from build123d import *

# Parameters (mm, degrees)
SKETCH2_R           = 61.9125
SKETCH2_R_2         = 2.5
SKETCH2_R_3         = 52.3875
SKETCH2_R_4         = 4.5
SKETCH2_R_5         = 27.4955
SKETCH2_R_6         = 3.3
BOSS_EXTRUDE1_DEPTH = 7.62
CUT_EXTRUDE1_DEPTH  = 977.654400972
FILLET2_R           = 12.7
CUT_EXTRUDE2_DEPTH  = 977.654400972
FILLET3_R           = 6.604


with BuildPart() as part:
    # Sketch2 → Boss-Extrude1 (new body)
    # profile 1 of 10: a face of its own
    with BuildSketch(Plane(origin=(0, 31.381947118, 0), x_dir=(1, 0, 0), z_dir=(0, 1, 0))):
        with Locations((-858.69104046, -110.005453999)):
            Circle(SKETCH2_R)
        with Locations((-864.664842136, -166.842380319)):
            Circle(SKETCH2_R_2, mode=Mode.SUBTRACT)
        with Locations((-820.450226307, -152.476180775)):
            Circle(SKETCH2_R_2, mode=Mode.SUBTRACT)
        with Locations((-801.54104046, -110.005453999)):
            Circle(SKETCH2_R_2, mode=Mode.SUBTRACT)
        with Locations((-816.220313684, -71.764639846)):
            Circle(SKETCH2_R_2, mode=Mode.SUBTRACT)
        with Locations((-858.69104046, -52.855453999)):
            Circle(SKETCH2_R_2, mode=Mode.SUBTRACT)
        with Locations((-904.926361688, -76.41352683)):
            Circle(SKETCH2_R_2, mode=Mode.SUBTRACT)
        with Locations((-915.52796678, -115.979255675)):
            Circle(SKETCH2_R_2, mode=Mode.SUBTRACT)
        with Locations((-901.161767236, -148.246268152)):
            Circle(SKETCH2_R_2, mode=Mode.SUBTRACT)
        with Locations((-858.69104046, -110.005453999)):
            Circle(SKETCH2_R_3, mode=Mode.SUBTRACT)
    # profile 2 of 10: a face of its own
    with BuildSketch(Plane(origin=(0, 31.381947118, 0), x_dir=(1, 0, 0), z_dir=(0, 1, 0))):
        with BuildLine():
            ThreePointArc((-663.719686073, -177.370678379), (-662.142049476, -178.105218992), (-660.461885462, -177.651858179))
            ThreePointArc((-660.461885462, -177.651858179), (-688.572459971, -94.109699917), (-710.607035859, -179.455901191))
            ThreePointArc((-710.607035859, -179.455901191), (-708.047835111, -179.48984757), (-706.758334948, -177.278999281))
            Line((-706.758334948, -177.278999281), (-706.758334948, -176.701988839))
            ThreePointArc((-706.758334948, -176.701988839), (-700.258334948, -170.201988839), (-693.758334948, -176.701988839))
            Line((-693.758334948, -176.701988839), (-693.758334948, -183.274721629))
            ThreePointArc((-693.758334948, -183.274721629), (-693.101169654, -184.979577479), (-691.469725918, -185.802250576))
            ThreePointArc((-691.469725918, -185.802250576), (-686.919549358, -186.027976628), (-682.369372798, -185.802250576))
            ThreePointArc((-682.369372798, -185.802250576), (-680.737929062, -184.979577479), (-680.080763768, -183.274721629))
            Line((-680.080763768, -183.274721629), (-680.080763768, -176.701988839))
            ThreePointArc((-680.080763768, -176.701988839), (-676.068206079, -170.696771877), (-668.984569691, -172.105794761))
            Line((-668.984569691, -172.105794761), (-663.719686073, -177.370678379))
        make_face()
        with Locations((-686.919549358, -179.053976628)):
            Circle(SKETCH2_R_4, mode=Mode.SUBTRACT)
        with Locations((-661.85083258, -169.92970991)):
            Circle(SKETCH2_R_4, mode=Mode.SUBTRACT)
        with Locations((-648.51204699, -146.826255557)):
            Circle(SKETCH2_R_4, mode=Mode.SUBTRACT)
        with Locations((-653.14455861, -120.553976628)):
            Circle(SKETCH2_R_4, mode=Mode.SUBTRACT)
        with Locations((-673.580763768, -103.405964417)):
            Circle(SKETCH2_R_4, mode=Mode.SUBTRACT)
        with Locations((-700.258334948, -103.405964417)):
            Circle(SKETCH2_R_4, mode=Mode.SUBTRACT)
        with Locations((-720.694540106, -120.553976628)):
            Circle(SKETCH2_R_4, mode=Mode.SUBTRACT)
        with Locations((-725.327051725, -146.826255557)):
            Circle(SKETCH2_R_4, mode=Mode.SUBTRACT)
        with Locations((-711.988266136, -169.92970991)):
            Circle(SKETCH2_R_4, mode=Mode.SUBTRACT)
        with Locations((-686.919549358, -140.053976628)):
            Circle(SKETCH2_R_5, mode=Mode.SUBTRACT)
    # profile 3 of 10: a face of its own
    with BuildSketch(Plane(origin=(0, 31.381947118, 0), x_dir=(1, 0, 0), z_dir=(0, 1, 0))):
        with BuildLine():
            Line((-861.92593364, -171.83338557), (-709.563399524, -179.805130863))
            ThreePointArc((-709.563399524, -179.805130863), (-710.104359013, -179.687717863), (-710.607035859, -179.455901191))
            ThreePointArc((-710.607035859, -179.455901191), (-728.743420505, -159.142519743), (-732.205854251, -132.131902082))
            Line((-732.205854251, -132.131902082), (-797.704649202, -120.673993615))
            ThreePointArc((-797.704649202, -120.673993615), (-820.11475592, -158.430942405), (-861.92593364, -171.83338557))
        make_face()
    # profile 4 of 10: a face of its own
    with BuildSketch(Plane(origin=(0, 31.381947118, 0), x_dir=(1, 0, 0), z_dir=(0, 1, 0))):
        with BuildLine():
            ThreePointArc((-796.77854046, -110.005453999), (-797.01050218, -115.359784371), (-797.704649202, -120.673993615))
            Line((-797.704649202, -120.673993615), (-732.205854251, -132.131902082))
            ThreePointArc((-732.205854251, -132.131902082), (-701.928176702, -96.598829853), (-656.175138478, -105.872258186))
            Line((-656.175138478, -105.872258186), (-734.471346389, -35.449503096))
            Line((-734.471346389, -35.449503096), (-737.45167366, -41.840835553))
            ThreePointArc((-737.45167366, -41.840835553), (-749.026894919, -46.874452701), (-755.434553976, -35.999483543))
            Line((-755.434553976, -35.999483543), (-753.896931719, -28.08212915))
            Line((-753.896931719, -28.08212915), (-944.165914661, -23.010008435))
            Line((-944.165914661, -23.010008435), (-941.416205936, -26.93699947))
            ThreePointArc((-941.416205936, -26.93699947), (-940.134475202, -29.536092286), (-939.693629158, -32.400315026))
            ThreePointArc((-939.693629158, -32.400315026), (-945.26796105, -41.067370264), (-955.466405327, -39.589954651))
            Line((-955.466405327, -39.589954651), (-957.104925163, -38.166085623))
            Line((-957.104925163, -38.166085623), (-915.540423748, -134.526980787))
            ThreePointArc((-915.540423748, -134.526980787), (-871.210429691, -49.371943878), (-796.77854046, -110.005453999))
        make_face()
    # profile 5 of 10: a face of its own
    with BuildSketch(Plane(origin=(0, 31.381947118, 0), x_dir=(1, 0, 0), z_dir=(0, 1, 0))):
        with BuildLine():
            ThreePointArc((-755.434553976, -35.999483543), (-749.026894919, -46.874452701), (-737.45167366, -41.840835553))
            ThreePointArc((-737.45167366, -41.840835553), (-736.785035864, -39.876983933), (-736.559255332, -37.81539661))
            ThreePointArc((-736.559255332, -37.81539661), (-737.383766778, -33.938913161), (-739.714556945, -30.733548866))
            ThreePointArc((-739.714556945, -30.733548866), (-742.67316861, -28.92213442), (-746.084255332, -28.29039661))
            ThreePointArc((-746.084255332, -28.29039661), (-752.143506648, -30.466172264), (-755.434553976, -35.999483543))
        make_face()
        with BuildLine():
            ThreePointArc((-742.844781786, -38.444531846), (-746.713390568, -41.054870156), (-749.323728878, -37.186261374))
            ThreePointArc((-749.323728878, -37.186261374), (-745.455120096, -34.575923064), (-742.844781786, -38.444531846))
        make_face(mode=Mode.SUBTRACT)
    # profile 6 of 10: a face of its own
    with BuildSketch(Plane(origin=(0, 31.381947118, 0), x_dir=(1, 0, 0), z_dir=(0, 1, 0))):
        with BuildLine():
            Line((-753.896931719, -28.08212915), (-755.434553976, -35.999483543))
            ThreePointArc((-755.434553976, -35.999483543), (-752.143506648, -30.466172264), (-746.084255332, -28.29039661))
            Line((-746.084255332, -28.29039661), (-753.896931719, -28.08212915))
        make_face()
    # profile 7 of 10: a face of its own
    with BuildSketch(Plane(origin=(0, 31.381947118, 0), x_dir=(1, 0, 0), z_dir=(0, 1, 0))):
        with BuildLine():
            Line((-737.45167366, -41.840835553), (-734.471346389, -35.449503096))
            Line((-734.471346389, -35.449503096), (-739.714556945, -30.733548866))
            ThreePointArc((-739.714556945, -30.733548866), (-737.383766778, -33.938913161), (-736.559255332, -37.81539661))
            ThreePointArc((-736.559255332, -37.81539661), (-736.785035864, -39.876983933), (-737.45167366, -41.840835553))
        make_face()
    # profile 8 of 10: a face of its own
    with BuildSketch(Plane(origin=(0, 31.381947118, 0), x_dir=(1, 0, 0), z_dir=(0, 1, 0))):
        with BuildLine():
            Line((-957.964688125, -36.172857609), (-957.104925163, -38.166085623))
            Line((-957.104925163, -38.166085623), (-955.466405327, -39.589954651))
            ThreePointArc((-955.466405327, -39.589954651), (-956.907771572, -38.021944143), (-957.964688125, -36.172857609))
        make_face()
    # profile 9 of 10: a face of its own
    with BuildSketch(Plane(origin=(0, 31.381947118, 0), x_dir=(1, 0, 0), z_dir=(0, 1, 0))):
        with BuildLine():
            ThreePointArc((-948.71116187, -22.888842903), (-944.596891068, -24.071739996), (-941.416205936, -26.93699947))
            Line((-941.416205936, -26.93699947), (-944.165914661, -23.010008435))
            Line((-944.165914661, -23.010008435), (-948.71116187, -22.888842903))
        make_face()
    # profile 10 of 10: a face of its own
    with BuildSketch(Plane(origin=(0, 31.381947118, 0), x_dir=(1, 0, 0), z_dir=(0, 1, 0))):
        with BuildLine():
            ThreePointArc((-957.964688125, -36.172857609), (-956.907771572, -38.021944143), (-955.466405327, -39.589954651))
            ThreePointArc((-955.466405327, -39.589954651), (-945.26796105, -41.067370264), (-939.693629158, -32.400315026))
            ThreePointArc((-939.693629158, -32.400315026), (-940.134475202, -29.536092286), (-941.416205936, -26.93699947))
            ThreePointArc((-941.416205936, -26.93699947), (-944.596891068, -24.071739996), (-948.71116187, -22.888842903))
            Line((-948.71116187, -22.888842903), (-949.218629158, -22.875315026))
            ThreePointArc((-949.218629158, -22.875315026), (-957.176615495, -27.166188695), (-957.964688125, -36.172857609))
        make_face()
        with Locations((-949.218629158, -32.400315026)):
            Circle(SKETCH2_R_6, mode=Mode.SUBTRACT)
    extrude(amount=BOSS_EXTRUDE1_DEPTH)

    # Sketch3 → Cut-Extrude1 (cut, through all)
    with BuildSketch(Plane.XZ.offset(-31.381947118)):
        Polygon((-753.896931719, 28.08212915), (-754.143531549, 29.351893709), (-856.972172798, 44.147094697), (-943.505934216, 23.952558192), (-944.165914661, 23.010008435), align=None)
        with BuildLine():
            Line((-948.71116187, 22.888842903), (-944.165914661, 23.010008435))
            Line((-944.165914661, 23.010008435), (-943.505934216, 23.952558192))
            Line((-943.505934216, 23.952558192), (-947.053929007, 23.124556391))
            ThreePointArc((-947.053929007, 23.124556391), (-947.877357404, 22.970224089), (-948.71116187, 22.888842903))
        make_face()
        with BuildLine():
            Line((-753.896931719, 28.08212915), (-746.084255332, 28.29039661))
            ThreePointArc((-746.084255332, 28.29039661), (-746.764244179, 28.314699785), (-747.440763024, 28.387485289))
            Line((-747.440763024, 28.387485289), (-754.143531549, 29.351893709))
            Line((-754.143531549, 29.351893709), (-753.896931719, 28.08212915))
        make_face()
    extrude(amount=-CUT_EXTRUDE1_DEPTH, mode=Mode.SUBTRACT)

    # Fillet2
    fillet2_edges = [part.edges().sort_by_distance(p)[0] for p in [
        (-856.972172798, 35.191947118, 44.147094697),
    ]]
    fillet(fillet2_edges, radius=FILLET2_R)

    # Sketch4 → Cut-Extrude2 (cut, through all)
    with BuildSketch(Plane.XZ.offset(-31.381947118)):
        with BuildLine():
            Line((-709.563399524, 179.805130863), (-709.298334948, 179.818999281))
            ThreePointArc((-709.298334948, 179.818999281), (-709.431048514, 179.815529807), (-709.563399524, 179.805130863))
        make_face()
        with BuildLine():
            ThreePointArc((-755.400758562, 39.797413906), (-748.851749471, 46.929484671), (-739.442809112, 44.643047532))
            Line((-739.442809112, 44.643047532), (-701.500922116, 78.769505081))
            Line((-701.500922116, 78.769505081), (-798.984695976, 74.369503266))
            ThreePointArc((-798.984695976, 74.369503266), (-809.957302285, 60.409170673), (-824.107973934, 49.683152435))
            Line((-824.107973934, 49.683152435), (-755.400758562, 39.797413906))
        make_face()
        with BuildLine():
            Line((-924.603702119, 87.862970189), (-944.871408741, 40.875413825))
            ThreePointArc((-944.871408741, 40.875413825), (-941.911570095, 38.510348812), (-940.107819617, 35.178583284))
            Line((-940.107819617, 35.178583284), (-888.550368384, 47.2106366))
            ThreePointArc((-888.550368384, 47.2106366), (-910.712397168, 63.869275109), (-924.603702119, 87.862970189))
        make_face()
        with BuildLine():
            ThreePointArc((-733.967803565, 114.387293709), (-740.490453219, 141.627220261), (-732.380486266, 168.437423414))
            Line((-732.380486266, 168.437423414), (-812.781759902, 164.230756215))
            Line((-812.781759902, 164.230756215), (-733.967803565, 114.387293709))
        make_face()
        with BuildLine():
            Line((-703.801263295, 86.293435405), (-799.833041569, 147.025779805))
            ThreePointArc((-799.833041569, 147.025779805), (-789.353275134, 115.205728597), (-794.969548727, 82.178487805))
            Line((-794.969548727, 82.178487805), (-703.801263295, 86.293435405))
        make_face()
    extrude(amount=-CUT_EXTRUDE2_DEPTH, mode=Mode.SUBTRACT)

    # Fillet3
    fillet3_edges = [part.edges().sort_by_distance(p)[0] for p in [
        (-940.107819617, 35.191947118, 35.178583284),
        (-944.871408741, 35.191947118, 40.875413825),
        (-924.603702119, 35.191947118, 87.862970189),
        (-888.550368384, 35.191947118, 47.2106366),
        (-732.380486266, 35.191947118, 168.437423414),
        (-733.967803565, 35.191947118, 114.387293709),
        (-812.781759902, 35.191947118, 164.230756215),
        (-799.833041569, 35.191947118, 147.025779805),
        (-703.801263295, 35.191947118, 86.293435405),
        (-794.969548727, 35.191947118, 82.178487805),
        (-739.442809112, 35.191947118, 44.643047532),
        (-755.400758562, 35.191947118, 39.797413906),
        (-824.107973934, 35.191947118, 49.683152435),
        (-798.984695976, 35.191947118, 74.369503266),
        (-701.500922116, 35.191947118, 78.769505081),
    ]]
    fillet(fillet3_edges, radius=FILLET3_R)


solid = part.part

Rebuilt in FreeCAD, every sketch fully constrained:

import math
import FreeCAD as App
import Part
import Sketcher

V = App.Vector
Q = App.Units.Quantity


def edges_at(feature, points):
    """Names of the edges that pass closest to the given points."""
    edges = feature.Shape.Edges
    near = lambda p: min(range(len(edges)), key=lambda i: edges[i].distToShape(Part.Vertex(*p))[0])
    return sorted({f"Edge{near(p) + 1}" for p in points})

doc = App.newDocument("Part")
body = doc.addObject("PartDesign::Body", "Body")

# Sketch on XZ plane
sketch1 = body.newObject("Sketcher::SketchObject", "Sketch")
sketch1.AttachmentSupport = (doc.getObject("XZ_Plane"), [""])
sketch1.MapMode = "FlatFace"
sketch1.AttachmentOffset = App.Placement(V(0, 0, -31.381947), App.Rotation())
sketch1.addGeometry([
    Part.ArcOfCircle(Part.Circle(V(-858.69104, 110.005454, 0), V(0, 0, 1), 61.9125), math.radians(92.995036), math.radians(156.667434)),  # 0
    Part.LineSegment(V(-861.925934, 171.833386, 0), V(-709.5634, 179.805131, 0)),  # 1
    Part.ArcOfCircle(Part.Circle(V(-709.298335, 177.278999, 0), V(0, 0, 1), 2.54), math.radians(0), math.radians(95.990072)),  # 2
    Part.LineSegment(V(-706.758335, 177.278999, 0), V(-706.758335, 176.701989, 0)),  # 3
    Part.ArcOfCircle(Part.Circle(V(-700.258335, 176.701989, 0), V(0, 0, 1), 6.5), math.radians(180), math.radians(360)),  # 4
    Part.LineSegment(V(-693.758335, 176.701989, 0), V(-693.758335, 183.274722, 0)),  # 5
    Part.ArcOfCircle(Part.Circle(V(-691.218335, 183.274722, 0), V(0, 0, 1), 2.54), math.radians(95.680024), math.radians(180)),  # 6
    Part.ArcOfCircle(Part.Circle(V(-686.919549, 140.053977, 0), V(0, 0, 1), 45.974), math.radians(84.319976), math.radians(95.680024)),  # 7
    Part.ArcOfCircle(Part.Circle(V(-682.620764, 183.274722, 0), V(0, 0, 1), 2.54), math.radians(0), math.radians(84.319976)),  # 8
    Part.LineSegment(V(-680.080764, 183.274722, 0), V(-680.080764, 176.701989, 0)),  # 9
    Part.ArcOfCircle(Part.Circle(V(-673.580764, 176.701989, 0), V(0, 0, 1), 6.5), math.radians(180), math.radians(315)),  # 10
    Part.LineSegment(V(-668.98457, 172.105795, 0), V(-663.719686, 177.370678, 0)),  # 11
    Part.ArcOfCircle(Part.Circle(V(-661.923635, 175.574627, 0), V(0, 0, 1), 2.54), math.radians(54.865914), math.radians(135)),  # 12
    Part.ArcOfCircle(Part.Circle(V(-686.919549, 140.053977, 0), V(0, 0, 1), 45.974), math.radians(-48.030514), math.radians(54.865914)),  # 13
    Part.LineSegment(V(-656.175138, 105.872258, 0), V(-734.471346, 35.449503, 0)),  # 14
    Part.LineSegment(V(-734.471346, 35.449503, 0), V(-739.714557, 30.733549, 0)),  # 15
    Part.ArcOfCircle(Part.Circle(V(-746.084255, 37.815397, 0), V(0, 0, 1), 9.525), math.radians(-90), math.radians(-48.030514)),  # 16
    Part.LineSegment(V(-746.084255, 28.290397, 0), V(-753.896932, 28.082129, 0)),  # 17
    Part.LineSegment(V(-753.896932, 28.082129, 0), V(-944.165915, 23.010008, 0)),  # 18
    Part.LineSegment(V(-944.165915, 23.010008, 0), V(-948.711162, 22.888843, 0)),  # 19
    Part.LineSegment(V(-948.711162, 22.888843, 0), V(-949.218629, 22.875315, 0)),  # 20
    Part.ArcOfCircle(Part.Circle(V(-949.218629, 32.400315, 0), V(0, 0, 1), 9.525), math.radians(156.667434), math.radians(270)),  # 21
    Part.LineSegment(V(-957.964688, 36.172858, 0), V(-957.104925, 38.166086, 0)),  # 22
    Part.LineSegment(V(-957.104925, 38.166086, 0), V(-915.540424, 134.526981, 0)),  # 23
    Part.Circle(V(-901.161767, 148.246268, 0), V(0, 0, 1), 2.5),  # 24
    Part.Circle(V(-864.664842, 166.84238, 0), V(0, 0, 1), 2.5),  # 25
    Part.Circle(V(-915.527967, 115.979256, 0), V(0, 0, 1), 2.5),  # 26
    Part.Circle(V(-858.69104, 110.005454, 0), V(0, 0, 1), 52.3875),  # 27
    Part.Circle(V(-820.450226, 152.476181, 0), V(0, 0, 1), 2.5),  # 28
    Part.Circle(V(-801.54104, 110.005454, 0), V(0, 0, 1), 2.5),  # 29
    Part.Circle(V(-904.926362, 76.413527, 0), V(0, 0, 1), 2.5),  # 30
    Part.Circle(V(-858.69104, 52.855454, 0), V(0, 0, 1), 2.5),  # 31
    Part.Circle(V(-816.220314, 71.76464, 0), V(0, 0, 1), 2.5),  # 32
    Part.Circle(V(-673.580764, 103.405964, 0), V(0, 0, 1), 4.5),  # 33
    Part.Circle(V(-700.258335, 103.405964, 0), V(0, 0, 1), 4.5),  # 34
    Part.Circle(V(-653.144559, 120.553977, 0), V(0, 0, 1), 4.5),  # 35
    Part.Circle(V(-711.988266, 169.92971, 0), V(0, 0, 1), 4.5),  # 36
    Part.Circle(V(-686.919549, 179.053977, 0), V(0, 0, 1), 4.5),  # 37
    Part.Circle(V(-725.327052, 146.826256, 0), V(0, 0, 1), 4.5),  # 38
    Part.Circle(V(-661.850833, 169.92971, 0), V(0, 0, 1), 4.5),  # 39
    Part.Circle(V(-648.512047, 146.826256, 0), V(0, 0, 1), 4.5),  # 40
    Part.Circle(V(-720.69454, 120.553977, 0), V(0, 0, 1), 4.5),  # 41
    Part.Circle(V(-686.919549, 140.053977, 0), V(0, 0, 1), 27.4955),  # 42
    Part.Circle(V(-746.084255, 37.815397, 0), V(0, 0, 1), 3.3),  # 43
    Part.Circle(V(-949.218629, 32.400315, 0), V(0, 0, 1), 3.3),  # 44
], False)
sketch1.addConstraint([
    Sketcher.Constraint("Coincident", 0, 1, 1, 1),
    Sketcher.Constraint("Coincident", 1, 2, 2, 2),
    Sketcher.Constraint("Coincident", 2, 1, 3, 1),
    Sketcher.Constraint("Coincident", 3, 2, 4, 1),
    Sketcher.Constraint("Coincident", 4, 2, 5, 1),
    Sketcher.Constraint("Coincident", 5, 2, 6, 2),
    Sketcher.Constraint("Coincident", 6, 1, 7, 2),
    Sketcher.Constraint("Coincident", 7, 1, 8, 2),
    Sketcher.Constraint("Coincident", 8, 1, 9, 1),
    Sketcher.Constraint("Coincident", 9, 2, 10, 1),
    Sketcher.Constraint("Coincident", 10, 2, 11, 1),
    Sketcher.Constraint("Coincident", 11, 2, 12, 2),
    Sketcher.Constraint("Coincident", 12, 1, 13, 2),
    Sketcher.Constraint("Coincident", 13, 1, 14, 1),
    Sketcher.Constraint("Coincident", 14, 2, 15, 1),
    Sketcher.Constraint("Coincident", 15, 2, 16, 2),
    Sketcher.Constraint("Coincident", 16, 1, 17, 1),
    Sketcher.Constraint("Coincident", 17, 2, 18, 1),
    Sketcher.Constraint("Coincident", 18, 2, 19, 1),
    Sketcher.Constraint("Coincident", 19, 2, 20, 1),
    Sketcher.Constraint("Coincident", 20, 2, 21, 2),
    Sketcher.Constraint("Coincident", 21, 1, 22, 1),
    Sketcher.Constraint("Coincident", 22, 2, 23, 1),
    Sketcher.Constraint("Coincident", 23, 2, 0, 2),
    Sketcher.Constraint("Vertical", 3),
    Sketcher.Constraint("Vertical", 5),
    Sketcher.Constraint("Vertical", 9),
    Sketcher.Constraint("Coincident", 13, 3, 7, 3),
    Sketcher.Constraint("Coincident", 27, 3, 0, 3),
    Sketcher.Constraint("Coincident", 42, 3, 7, 3),
    Sketcher.Constraint("Coincident", 43, 3, 16, 3),
    Sketcher.Constraint("Coincident", 44, 3, 21, 3),
    Sketcher.Constraint("Radius", 2, Q("0.1 in")),
    Sketcher.Constraint("Radius", 6, Q("0.1 in")),
    Sketcher.Constraint("Radius", 8, Q("0.1 in")),
    Sketcher.Constraint("Radius", 12, Q("0.1 in")),
    Sketcher.Constraint("Radius", 7, Q("1.81 in")),
    Sketcher.Constraint("Radius", 13, Q("1.81 in")),
    Sketcher.Constraint("Diameter", 27, Q("4.125 in")),
    Sketcher.Constraint("Diameter", 42, Q("2.165 in")),
    Sketcher.Constraint("Radius", 0, Q("2.4375 in")),
    Sketcher.Constraint("Radius", 16, Q("0.375 in")),
    Sketcher.Constraint("Radius", 21, Q("0.375 in")),
    Sketcher.Constraint("Diameter", 24, 5.0),
    Sketcher.Constraint("Diameter", 25, 5.0),
    Sketcher.Constraint("Diameter", 26, 5.0),
    Sketcher.Constraint("Diameter", 28, 5.0),
    Sketcher.Constraint("Diameter", 29, 5.0),
    Sketcher.Constraint("Diameter", 30, 5.0),
    Sketcher.Constraint("Diameter", 31, 5.0),
    Sketcher.Constraint("Diameter", 32, 5.0),
    Sketcher.Constraint("Diameter", 33, 9.0),
    Sketcher.Constraint("Diameter", 34, 9.0),
    Sketcher.Constraint("Diameter", 35, 9.0),
    Sketcher.Constraint("Diameter", 36, 9.0),
    Sketcher.Constraint("Diameter", 37, 9.0),
    Sketcher.Constraint("Diameter", 38, 9.0),
    Sketcher.Constraint("Diameter", 39, 9.0),
    Sketcher.Constraint("Diameter", 40, 9.0),
    Sketcher.Constraint("Diameter", 41, 9.0),
    Sketcher.Constraint("Diameter", 43, 6.6),
    Sketcher.Constraint("Diameter", 44, 6.6),
    Sketcher.Constraint("Radius", 4, 6.5),
    Sketcher.Constraint("Radius", 10, 6.5),
    Sketcher.Constraint("DistanceX", 0, 3, 29, 3, Q("2.25 in")),
    Sketcher.Constraint("DistanceY", 31, 3, 0, 3, Q("2.25 in")),
    Sketcher.Constraint("DistanceX", 31, 3, 29, 3, Q("2.25 in")),
    Sketcher.Constraint("DistanceY", 31, 3, 29, 3, Q("2.25 in")),
    Sketcher.Constraint("DistanceY", 3, 2, 3, 1, 0.57701),
    Sketcher.Constraint("DistanceY", -1, 1, 2, 3, 177.278999),
    Sketcher.Constraint("DistanceX", 1, 2, -1, 1, 709.5634),
    Sketcher.Constraint("DistanceY", -1, 1, 2, 1, 177.278999),
    Sketcher.Constraint("DistanceX", 6, 3, 12, 3, 29.2947),
    Sketcher.Constraint("DistanceX", 25, 3, 0, 3, 5.973802),
    Sketcher.Constraint("DistanceX", 26, 3, 24, 3, 14.3662),
    Sketcher.Constraint("DistanceY", 0, 3, 26, 3, 5.973802),
    Sketcher.Constraint("DistanceY", 28, 3, 25, 3, 14.3662),
    Sketcher.Constraint("DistanceX", 2, 3, 34, 3, 9.04),
    Sketcher.Constraint("DistanceY", 35, 3, 13, 3, 19.5),
    Sketcher.Constraint("DistanceY", 41, 3, 13, 3, 19.5),
    Sketcher.Constraint("DistanceY", 42, 3, 37, 3, 39.0),
    Sketcher.Constraint("DistanceX", 11, 2, 12, 1, 3.257801),
    Sketcher.Constraint("DistanceX", 16, 3, 15, 2, 6.369698),
    Sketcher.Constraint("DistanceX", 16, 1, 15, 2, 6.369698),
    Sketcher.Constraint("DistanceX", 19, 2, 30, 3, 43.7848),
    Sketcher.Constraint("DistanceY", 23, 2, 25, 3, 32.3154),
    Sketcher.Constraint("Distance", 11, 7.44567),
    Sketcher.Constraint("Distance", 17, 7.815452),
    Sketcher.Constraint("Distance", 19, 4.546862),
    Sketcher.Constraint("Distance", 22, 2.170749),
    Sketcher.Constraint("DistanceY", 5, 1, 5, 2, 6.572733),
    Sketcher.Constraint("DistanceY", 9, 2, 9, 1, 6.572733),
    Sketcher.Constraint("DistanceX", 0, 3, -1, 1, 858.69104),
    Sketcher.Constraint("DistanceY", -1, 1, 4, 3, 176.701989),
    Sketcher.Constraint("DistanceY", -1, 1, 6, 3, 183.274722),
    Sketcher.Constraint("DistanceX", 7, 3, -1, 1, 686.919549),
    Sketcher.Constraint("DistanceY", -1, 1, 8, 3, 183.274722),
    Sketcher.Constraint("DistanceY", -1, 1, 10, 3, 176.701989),
    Sketcher.Constraint("DistanceX", 21, 3, -1, 1, 949.218629),
    Sketcher.Constraint("DistanceY", -1, 1, 24, 3, 148.246268),
    Sketcher.Constraint("DistanceY", -1, 1, 25, 3, 166.84238),
    Sketcher.Constraint("DistanceX", 30, 3, -1, 1, 904.926362),
    Sketcher.Constraint("DistanceY", -1, 1, 32, 3, 71.76464),
    Sketcher.Constraint("DistanceX", 35, 3, -1, 1, 653.144559),
    Sketcher.Constraint("DistanceY", -1, 1, 36, 3, 169.92971),
    Sketcher.Constraint("DistanceX", 37, 3, -1, 1, 686.919549),
    Sketcher.Constraint("DistanceX", 38, 3, -1, 1, 725.327052),
    Sketcher.Constraint("DistanceY", -1, 1, 39, 3, 169.92971),
    Sketcher.Constraint("DistanceX", 41, 3, -1, 1, 720.69454),
    Sketcher.Constraint("DistanceY", -1, 1, 1, 2, 179.805131),
    Sketcher.Constraint("DistanceY", -1, 1, 4, 2, 176.701989),
    Sketcher.Constraint("DistanceY", -1, 1, 6, 1, 185.802251),
    Sketcher.Constraint("DistanceY", -1, 1, 7, 1, 185.802251),
    Sketcher.Constraint("DistanceY", -1, 1, 8, 1, 183.274722),
    Sketcher.Constraint("DistanceX", 10, 2, -1, 1, 668.98457),
    Sketcher.Constraint("DistanceX", 13, 1, -1, 1, 656.175138),
    Sketcher.Constraint("DistanceY", -1, 1, 15, 2, 30.733549),
    Sketcher.Constraint("DistanceX", 17, 2, -1, 1, 753.896932),
    Sketcher.Constraint("DistanceY", -1, 1, 17, 2, 28.082129),
    Sketcher.Constraint("DistanceY", -1, 1, 18, 2, 23.010008),
    Sketcher.Constraint("DistanceX", 20, 2, -1, 1, 949.218629),
    Sketcher.Constraint("DistanceX", 21, 1, -1, 1, 957.964688),
    Sketcher.Constraint("DistanceY", 21, 3, 0, 3, 77.605139),
    Sketcher.Constraint("DistanceY", 21, 3, 16, 3, 5.415082),
    Sketcher.Constraint("DistanceX", 21, 3, 24, 3, 48.056862),
    Sketcher.Constraint("DistanceX", 24, 3, 28, 3, 80.711541),
    Sketcher.Constraint("DistanceY", 30, 3, 26, 3, 39.565729),
    Sketcher.Constraint("DistanceX", 32, 3, 16, 3, 70.136058),
    Sketcher.Constraint("DistanceX", 33, 3, 12, 3, 11.657129),
    Sketcher.Constraint("DistanceX", 36, 3, 2, 3, 2.689931),
    Sketcher.Constraint("DistanceY", 7, 3, 38, 3, 6.772279),
    Sketcher.Constraint("DistanceX", 10, 3, 39, 3, 11.729931),
    Sketcher.Constraint("DistanceX", 35, 3, 40, 3, 4.632512),
    Sketcher.Constraint("DistanceY", 35, 3, 40, 3, 26.272279),
    Sketcher.Constraint("DistanceX", 25, 3, 0, 1, 2.738908),
    Sketcher.Constraint("DistanceX", 16, 3, 14, 2, 11.612909),
    Sketcher.Constraint("DistanceY", 14, 2, 34, 3, 67.956461),
    Sketcher.Constraint("DistanceY", 19, 2, 31, 3, 29.966611),
    Sketcher.Constraint("DistanceY", 21, 1, 22, 2, 1.993228),
    Sketcher.Constraint("Distance", 14, 105.307458),
    Sketcher.Constraint("DistanceY", -1, 1, 33, 3, 103.405964),
])
pad1 = body.newObject("PartDesign::Pad", "Pad")
pad1.Profile = sketch1
pad1.Length = Q("0.3 in")
pad1.Reversed = True

# Sketch on XZ plane
sketch2 = body.newObject("Sketcher::SketchObject", "Sketch001")
sketch2.AttachmentSupport = (doc.getObject("XZ_Plane"), [""])
sketch2.MapMode = "FlatFace"
sketch2.AttachmentOffset = App.Placement(V(0, 0, -31.381947), App.Rotation())
sketch2.addGeometry([
    Part.LineSegment(V(-754.1, 29.4, 0), V(-857, 44.1, 0)),  # 0
    Part.LineSegment(V(-857, 44.1, 0), V(-943.5, 24, 0)),  # 1
    Part.LineSegment(V(-943.5, 24, 0), V(-947.1, 23.1, 0)),  # 2
    Part.ArcOfCircle(Part.Circle(V(-949.2, 32.4, 0), V(0, 0, 1), 9.5), math.radians(-86.95), math.radians(-76.86)),  # 3
    Part.LineSegment(V(-948.7, 22.9, 0), V(-944.2, 23, 0)),  # 4
    Part.LineSegment(V(-944.2, 23, 0), V(-753.9, 28.1, 0)),  # 5
    Part.LineSegment(V(-753.9, 28.1, 0), V(-746.1, 28.3, 0)),  # 6
    Part.ArcOfCircle(Part.Circle(V(-746.1, 37.8, 0), V(0, 0, 1), 9.5), math.radians(-98.19), math.radians(-90)),  # 7
    Part.LineSegment(V(-747.4, 28.4, 0), V(-754.1, 29.4, 0)),  # 8
], False)
sketch2.addConstraint([
    Sketcher.Constraint("Coincident", 0, 2, 1, 1),
    Sketcher.Constraint("Coincident", 1, 2, 2, 1),
    Sketcher.Constraint("Tangent", 2, 2, 3, 2),
    Sketcher.Constraint("Coincident", 3, 1, 4, 1),
    Sketcher.Constraint("Coincident", 4, 2, 5, 1),
    Sketcher.Constraint("Coincident", 5, 2, 6, 1),
    Sketcher.Constraint("Coincident", 6, 2, 7, 2),
    Sketcher.Constraint("Tangent", 7, 1, 8, 1),
    Sketcher.Constraint("Coincident", 8, 2, 0, 1),
    Sketcher.Constraint("Equal", 3, 7),
    Sketcher.Constraint("Parallel", 1, 2),
    Sketcher.Constraint("Parallel", 4, 5),
    Sketcher.Constraint("Parallel", 5, 6),
    Sketcher.Constraint("Parallel", 0, 8),
    Sketcher.Constraint("Vertical", 7, 3, 6, 2),
    Sketcher.Constraint("Radius", 3, Q("0.375 in")),
    Sketcher.Constraint("DistanceY", 2, 2, 1, 2, 0.828002),
    Sketcher.Constraint("DistanceX", 3, 3, 2, 2, 2.1647),
    Sketcher.Constraint("DistanceY", 6, 2, 0, 2, 15.856698),
    Sketcher.Constraint("DistanceX", 8, 2, 5, 2, 0.2466),
    Sketcher.Constraint("DistanceY", 8, 2, 0, 2, 14.795201),
    Sketcher.Constraint("Distance", 0, 103.887571),
    Sketcher.Constraint("Distance", 1, 88.85894),
    Sketcher.Constraint("Distance", 4, 4.546862),
    Sketcher.Constraint("DistanceX", 3, 3, -1, 1, 949.218629),
    Sketcher.Constraint("DistanceY", -1, 1, 1, 2, 23.952558),
    Sketcher.Constraint("DistanceX", 3, 1, -1, 1, 948.711162),
])
pocket1 = body.newObject("PartDesign::Pocket", "Pocket")
pocket1.Profile = sketch2
pocket1.Type = "ThroughAll"
doc.recompute()

fillet = body.newObject("PartDesign::Fillet", "Fillet")
fillet.Base = (pocket1, edges_at(pocket1, [(-856.972, 35.192, 44.147)]))
fillet.Radius = Q("0.5 in")

# Sketch on XZ plane
sketch3 = body.newObject("Sketcher::SketchObject", "Sketch002")
sketch3.AttachmentSupport = (doc.getObject("XZ_Plane"), [""])
sketch3.MapMode = "FlatFace"
sketch3.AttachmentOffset = App.Placement(V(0, 0, -31.381947), App.Rotation())
sketch3.addGeometry([
    Part.LineSegment(V(-709.5634, 179.805131, 0), V(-709.298335, 179.818999, 0)),  # 0
    Part.ArcOfCircle(Part.Circle(V(-709.298335, 177.278999, 0), V(0, 0, 1), 2.54), math.radians(90), math.radians(95.990072)),  # 1
    Part.ArcOfCircle(Part.Circle(V(-746.084255, 37.815397, 0), V(0, 0, 1), 9.525), math.radians(45.79204), math.radians(167.989801)),  # 2
    Part.LineSegment(V(-739.442809, 44.643048, 0), V(-701.500922, 78.769505, 0)),  # 3
    Part.LineSegment(V(-701.500922, 78.769505, 0), V(-798.984696, 74.369503, 0)),  # 4
    Part.ArcOfCircle(Part.Circle(V(-858.69104, 110.005454, 0), V(0, 0, 1), 69.5325), math.radians(-60.174145), math.radians(-30.83102)),  # 5
    Part.LineSegment(V(-824.107974, 49.683152, 0), V(-755.400759, 39.797414, 0)),  # 6
    Part.LineSegment(V(-924.603702, 87.86297, 0), V(-944.871409, 40.875414, 0)),  # 7
    Part.ArcOfCircle(Part.Circle(V(-949.218629, 32.400315, 0), V(0, 0, 1), 9.525), math.radians(16.958664), math.radians(62.844881)),  # 8
    Part.LineSegment(V(-940.10782, 35.178583, 0), V(-888.550368, 47.210637, 0)),  # 9
    Part.ArcOfCircle(Part.Circle(V(-858.69104, 110.005454, 0), V(0, 0, 1), 69.5325), math.radians(-161.430909), math.radians(-115.43138)),  # 10
    Part.ArcOfCircle(Part.Circle(V(-686.919549, 140.053977, 0), V(0, 0, 1), 53.594), math.radians(148.021486), math.radians(208.614213)),  # 11
    Part.LineSegment(V(-732.380486, 168.437423, 0), V(-812.78176, 164.230756, 0)),  # 12
    Part.LineSegment(V(-812.78176, 164.230756, 0), V(-733.967804, 114.387294, 0)),  # 13
    Part.LineSegment(V(-703.801263, 86.293435, 0), V(-799.833042, 147.02578, 0)),  # 14
    Part.ArcOfCircle(Part.Circle(V(-858.69104, 110.005454, 0), V(0, 0, 1), 69.5325), math.radians(-23.590736), math.radians(32.168947)),  # 15
    Part.LineSegment(V(-794.969549, 82.178488, 0), V(-703.801263, 86.293435, 0)),  # 16
], False)
sketch3.addConstraint([
    Sketcher.Constraint("Coincident", 0, 1, 1, 2),
    Sketcher.Constraint("Coincident", 1, 1, 0, 2),
    Sketcher.Constraint("Coincident", 2, 1, 3, 1),
    Sketcher.Constraint("Coincident", 3, 2, 4, 1),
    Sketcher.Constraint("Coincident", 4, 2, 5, 2),
    Sketcher.Constraint("Coincident", 5, 1, 6, 1),
    Sketcher.Constraint("Coincident", 6, 2, 2, 2),
    Sketcher.Constraint("Coincident", 7, 2, 8, 2),
    Sketcher.Constraint("Coincident", 8, 1, 9, 1),
    Sketcher.Constraint("Coincident", 9, 2, 10, 2),
    Sketcher.Constraint("Coincident", 10, 1, 7, 1),
    Sketcher.Constraint("Coincident", 11, 1, 12, 1),
    Sketcher.Constraint("Coincident", 12, 2, 13, 1),
    Sketcher.Constraint("Coincident", 13, 2, 11, 2),
    Sketcher.Constraint("Coincident", 14, 2, 15, 2),
    Sketcher.Constraint("Coincident", 15, 1, 16, 1),
    Sketcher.Constraint("Coincident", 16, 2, 14, 1),
    Sketcher.Constraint("Coincident", 10, 3, 5, 3),
    Sketcher.Constraint("Coincident", 15, 3, 5, 3),
    Sketcher.Constraint("Radius", 1, Q("0.1 in")),
    Sketcher.Constraint("Radius", 11, Q("2.11 in")),
    Sketcher.Constraint("Radius", 2, Q("0.375 in")),
    Sketcher.Constraint("Radius", 8, Q("0.375 in")),
    Sketcher.Constraint("Radius", 5, Q("2.7375 in")),
    Sketcher.Constraint("Radius", 10, Q("2.7375 in")),
    Sketcher.Constraint("Radius", 15, Q("2.7375 in")),
    Sketcher.Constraint("DistanceX", 5, 1, 2, 3, Q("3.0717999 in")),
    Sketcher.Constraint("Distance", 13, 93.252402),
    Sketcher.Constraint("DistanceY", -1, 1, 1, 3, 177.278999),
    Sketcher.Constraint("DistanceX", 0, 1, -1, 1, 709.5634),
    Sketcher.Constraint("DistanceY", 5, 1, 15, 3, 60.322302),
    Sketcher.Constraint("DistanceY", 8, 3, 7, 2, 8.475099),
    Sketcher.Constraint("DistanceX", 15, 3, 14, 2, 58.857999),
    Sketcher.Constraint("Distance", 3, 51.031381),
    Sketcher.Constraint("Distance", 4, 97.583022),
    Sketcher.Constraint("Distance", 7, 51.17236),
    Sketcher.Constraint("Distance", 9, 52.94281),
    Sketcher.Constraint("Distance", 14, 113.62447),
    Sketcher.Constraint("DistanceX", 5, 3, -1, 1, 858.69104),
    Sketcher.Constraint("DistanceX", 8, 3, -1, 1, 949.218629),
    Sketcher.Constraint("DistanceX", 11, 3, -1, 1, 686.919549),
    Sketcher.Constraint("DistanceY", -1, 1, 0, 1, 179.805131),
    Sketcher.Constraint("DistanceX", 2, 1, -1, 1, 739.442809),
    Sketcher.Constraint("DistanceX", 6, 2, -1, 1, 755.400759),
    Sketcher.Constraint("DistanceX", 8, 1, -1, 1, 940.10782),
    Sketcher.Constraint("DistanceX", 9, 2, -1, 1, 888.550368),
    Sketcher.Constraint("DistanceY", -1, 1, 10, 1, 87.86297),
    Sketcher.Constraint("DistanceX", 12, 2, -1, 1, 812.78176),
    Sketcher.Constraint("DistanceX", 15, 1, -1, 1, 794.969549),
    Sketcher.Constraint("DistanceY", 8, 3, 2, 3, 5.415082),
    Sketcher.Constraint("DistanceY", 2, 3, 11, 3, 102.23858),
    Sketcher.Constraint("DistanceX", 2, 3, 1, 1, 36.78592),
    Sketcher.Constraint("DistanceY", 2, 3, 3, 2, 40.954108),
    Sketcher.Constraint("DistanceX", 11, 1, 1, 3, 23.082151),
    Sketcher.Constraint("DistanceX", 13, 2, 3, 2, 32.466881),
    Sketcher.Constraint("DistanceX", 16, 2, 3, 2, 2.300341),
])
pocket2 = body.newObject("PartDesign::Pocket", "Pocket001")
pocket2.Profile = sketch3
pocket2.Type = "ThroughAll"
doc.recompute()

fillet2 = body.newObject("PartDesign::Fillet", "Fillet001")
fillet2.Base = (pocket2, edges_at(pocket2, [
    (-940.108, 35.192, 35.179),
    (-944.871, 35.192, 40.875),
    (-924.604, 35.192, 87.863),
    (-888.55, 35.192, 47.211),
    (-732.38, 35.192, 168.437),
    (-733.968, 35.192, 114.387),
    (-812.782, 35.192, 164.231),
    (-799.833, 35.192, 147.026),
    (-703.801, 35.192, 86.293),
    (-794.97, 35.192, 82.178),
    (-739.443, 35.192, 44.643),
    (-755.401, 35.192, 39.797),
    (-824.108, 35.192, 49.683),
    (-798.985, 35.192, 74.37),
    (-701.501, 35.192, 78.77),
]))
fillet2.Radius = Q("0.26 in")

doc.recompute()
